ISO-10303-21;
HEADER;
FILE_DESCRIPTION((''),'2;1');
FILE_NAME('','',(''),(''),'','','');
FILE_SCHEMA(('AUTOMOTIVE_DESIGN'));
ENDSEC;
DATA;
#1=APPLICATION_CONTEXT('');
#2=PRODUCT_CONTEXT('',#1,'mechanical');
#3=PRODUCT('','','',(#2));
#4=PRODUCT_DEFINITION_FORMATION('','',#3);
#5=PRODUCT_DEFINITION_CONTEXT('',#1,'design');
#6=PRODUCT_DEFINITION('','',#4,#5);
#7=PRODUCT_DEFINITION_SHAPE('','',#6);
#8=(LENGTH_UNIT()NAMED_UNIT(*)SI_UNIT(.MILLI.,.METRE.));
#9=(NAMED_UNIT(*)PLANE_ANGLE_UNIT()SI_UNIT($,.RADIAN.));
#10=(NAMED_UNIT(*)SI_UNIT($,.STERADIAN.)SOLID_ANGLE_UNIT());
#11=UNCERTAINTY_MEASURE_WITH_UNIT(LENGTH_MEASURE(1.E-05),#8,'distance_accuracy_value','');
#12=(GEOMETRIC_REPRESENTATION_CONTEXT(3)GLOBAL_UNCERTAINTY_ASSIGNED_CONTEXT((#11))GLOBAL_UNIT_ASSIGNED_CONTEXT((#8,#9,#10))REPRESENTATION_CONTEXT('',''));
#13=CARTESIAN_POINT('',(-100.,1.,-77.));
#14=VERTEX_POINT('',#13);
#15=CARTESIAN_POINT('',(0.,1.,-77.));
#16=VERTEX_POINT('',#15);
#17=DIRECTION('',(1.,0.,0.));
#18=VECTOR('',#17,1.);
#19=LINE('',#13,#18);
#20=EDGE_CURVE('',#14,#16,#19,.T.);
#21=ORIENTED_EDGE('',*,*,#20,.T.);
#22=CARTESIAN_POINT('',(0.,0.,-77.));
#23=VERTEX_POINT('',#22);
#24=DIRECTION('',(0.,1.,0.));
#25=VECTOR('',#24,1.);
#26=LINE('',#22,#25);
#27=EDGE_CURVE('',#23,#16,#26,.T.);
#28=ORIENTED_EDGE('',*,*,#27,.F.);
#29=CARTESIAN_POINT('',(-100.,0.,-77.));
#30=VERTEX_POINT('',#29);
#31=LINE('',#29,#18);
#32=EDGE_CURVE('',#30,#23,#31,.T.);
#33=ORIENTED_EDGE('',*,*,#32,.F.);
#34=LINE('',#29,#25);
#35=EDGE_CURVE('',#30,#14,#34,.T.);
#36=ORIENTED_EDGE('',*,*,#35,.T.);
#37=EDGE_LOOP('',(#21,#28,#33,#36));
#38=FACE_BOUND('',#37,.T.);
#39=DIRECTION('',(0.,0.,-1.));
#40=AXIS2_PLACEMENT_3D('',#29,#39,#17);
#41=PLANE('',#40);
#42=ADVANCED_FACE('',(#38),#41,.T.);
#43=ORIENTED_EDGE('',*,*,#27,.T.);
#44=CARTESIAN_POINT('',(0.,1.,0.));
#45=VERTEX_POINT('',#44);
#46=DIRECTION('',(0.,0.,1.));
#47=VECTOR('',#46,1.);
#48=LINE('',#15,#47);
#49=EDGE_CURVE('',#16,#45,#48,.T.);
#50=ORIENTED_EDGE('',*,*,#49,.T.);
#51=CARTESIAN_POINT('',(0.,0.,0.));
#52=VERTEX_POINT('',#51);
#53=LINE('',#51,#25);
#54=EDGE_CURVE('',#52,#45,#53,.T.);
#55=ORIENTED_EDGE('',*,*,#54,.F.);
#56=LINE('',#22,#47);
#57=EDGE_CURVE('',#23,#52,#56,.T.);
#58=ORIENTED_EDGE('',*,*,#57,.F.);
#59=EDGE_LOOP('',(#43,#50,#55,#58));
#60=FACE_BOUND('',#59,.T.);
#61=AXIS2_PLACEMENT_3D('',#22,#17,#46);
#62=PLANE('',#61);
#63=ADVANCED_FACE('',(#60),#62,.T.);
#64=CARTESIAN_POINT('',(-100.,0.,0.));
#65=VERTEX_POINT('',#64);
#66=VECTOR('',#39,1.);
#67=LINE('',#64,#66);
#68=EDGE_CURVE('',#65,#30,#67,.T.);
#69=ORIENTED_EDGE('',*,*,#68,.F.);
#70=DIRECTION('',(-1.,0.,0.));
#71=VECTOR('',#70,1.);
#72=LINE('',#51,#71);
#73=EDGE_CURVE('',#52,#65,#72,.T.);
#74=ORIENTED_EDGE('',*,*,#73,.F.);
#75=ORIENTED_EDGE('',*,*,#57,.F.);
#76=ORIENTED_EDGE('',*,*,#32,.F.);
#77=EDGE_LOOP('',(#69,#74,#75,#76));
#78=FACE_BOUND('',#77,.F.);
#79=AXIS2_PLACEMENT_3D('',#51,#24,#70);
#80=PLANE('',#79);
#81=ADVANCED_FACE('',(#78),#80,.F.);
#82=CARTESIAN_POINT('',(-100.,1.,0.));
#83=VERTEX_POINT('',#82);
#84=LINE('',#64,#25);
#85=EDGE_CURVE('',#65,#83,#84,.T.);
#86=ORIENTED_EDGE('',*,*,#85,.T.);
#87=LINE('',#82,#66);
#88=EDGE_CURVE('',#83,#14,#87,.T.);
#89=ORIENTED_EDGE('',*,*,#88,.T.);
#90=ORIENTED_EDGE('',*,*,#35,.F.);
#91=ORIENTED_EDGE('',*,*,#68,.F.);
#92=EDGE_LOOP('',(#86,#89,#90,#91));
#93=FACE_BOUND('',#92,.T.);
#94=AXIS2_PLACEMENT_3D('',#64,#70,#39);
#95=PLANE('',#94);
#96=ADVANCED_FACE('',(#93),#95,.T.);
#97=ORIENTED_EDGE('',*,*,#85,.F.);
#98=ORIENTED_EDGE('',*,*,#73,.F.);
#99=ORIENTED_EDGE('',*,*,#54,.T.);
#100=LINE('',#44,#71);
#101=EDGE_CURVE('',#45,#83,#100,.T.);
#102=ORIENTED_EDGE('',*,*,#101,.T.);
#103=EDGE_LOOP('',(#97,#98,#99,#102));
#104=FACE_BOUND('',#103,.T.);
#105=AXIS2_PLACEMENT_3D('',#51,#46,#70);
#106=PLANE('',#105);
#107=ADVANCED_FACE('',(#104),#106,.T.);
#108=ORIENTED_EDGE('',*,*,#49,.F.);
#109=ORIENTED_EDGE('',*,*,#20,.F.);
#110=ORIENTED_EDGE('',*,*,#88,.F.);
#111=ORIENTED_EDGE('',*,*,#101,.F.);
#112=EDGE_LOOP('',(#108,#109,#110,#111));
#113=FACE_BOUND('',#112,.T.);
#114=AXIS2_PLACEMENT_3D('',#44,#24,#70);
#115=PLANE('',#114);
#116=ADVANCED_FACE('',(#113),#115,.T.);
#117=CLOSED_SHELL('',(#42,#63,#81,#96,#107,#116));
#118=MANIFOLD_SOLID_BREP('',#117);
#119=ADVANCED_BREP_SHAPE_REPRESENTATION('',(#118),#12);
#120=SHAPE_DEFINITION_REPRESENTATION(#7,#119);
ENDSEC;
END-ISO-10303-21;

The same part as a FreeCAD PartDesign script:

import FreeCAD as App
import Part
import Sketcher
from FreeCAD import Vector
Q = App.Units.Quantity

doc = App.newDocument("Part")
body = doc.addObject("PartDesign::Body", "Body")

# Sketch on XZ plane
sketch1 = doc.addObject("Sketcher::SketchObject", "Sketch")
body.addObject(sketch1)
sketch1.AttachmentSupport = (doc.XZ_Plane, [""])
sketch1.MapMode = "FlatFace"
sketch1.addGeometry([
    Part.LineSegment(Vector(-100, 0, 0), Vector(0, 0, 0)),
    Part.LineSegment(Vector(0, 0, 0), Vector(0, -77, 0)),
    Part.LineSegment(Vector(0, -77, 0), Vector(-100, -77, 0)),
    Part.LineSegment(Vector(-100, -77, 0), Vector(-100, 0, 0)),
], False)
sketch1.addConstraint([
    Sketcher.Constraint("Coincident", 0, 2, 1, 1),
    Sketcher.Constraint("Coincident", 1, 2, 2, 1),
    Sketcher.Constraint("Coincident", 2, 2, 3, 1),
    Sketcher.Constraint("Coincident", 3, 2, 0, 1),
    Sketcher.Constraint("Horizontal", 0),
    Sketcher.Constraint("Vertical", 1),
    Sketcher.Constraint("Horizontal", 2),
    Sketcher.Constraint("Vertical", 3),
    Sketcher.Constraint("Coincident", 0, 2, -1, 1),
    Sketcher.Constraint("DistanceX", 0, 1, 0, 2, Q("100 mm")),
    Sketcher.Constraint("DistanceY", 1, 2, 1, 1, Q("77 mm")),
])
pad1 = doc.addObject("PartDesign::Pad", "Pad")
body.addObject(pad1)
pad1.Profile = sketch1
pad1.Length = 1
pad1.Reversed = True

doc.recompute()
